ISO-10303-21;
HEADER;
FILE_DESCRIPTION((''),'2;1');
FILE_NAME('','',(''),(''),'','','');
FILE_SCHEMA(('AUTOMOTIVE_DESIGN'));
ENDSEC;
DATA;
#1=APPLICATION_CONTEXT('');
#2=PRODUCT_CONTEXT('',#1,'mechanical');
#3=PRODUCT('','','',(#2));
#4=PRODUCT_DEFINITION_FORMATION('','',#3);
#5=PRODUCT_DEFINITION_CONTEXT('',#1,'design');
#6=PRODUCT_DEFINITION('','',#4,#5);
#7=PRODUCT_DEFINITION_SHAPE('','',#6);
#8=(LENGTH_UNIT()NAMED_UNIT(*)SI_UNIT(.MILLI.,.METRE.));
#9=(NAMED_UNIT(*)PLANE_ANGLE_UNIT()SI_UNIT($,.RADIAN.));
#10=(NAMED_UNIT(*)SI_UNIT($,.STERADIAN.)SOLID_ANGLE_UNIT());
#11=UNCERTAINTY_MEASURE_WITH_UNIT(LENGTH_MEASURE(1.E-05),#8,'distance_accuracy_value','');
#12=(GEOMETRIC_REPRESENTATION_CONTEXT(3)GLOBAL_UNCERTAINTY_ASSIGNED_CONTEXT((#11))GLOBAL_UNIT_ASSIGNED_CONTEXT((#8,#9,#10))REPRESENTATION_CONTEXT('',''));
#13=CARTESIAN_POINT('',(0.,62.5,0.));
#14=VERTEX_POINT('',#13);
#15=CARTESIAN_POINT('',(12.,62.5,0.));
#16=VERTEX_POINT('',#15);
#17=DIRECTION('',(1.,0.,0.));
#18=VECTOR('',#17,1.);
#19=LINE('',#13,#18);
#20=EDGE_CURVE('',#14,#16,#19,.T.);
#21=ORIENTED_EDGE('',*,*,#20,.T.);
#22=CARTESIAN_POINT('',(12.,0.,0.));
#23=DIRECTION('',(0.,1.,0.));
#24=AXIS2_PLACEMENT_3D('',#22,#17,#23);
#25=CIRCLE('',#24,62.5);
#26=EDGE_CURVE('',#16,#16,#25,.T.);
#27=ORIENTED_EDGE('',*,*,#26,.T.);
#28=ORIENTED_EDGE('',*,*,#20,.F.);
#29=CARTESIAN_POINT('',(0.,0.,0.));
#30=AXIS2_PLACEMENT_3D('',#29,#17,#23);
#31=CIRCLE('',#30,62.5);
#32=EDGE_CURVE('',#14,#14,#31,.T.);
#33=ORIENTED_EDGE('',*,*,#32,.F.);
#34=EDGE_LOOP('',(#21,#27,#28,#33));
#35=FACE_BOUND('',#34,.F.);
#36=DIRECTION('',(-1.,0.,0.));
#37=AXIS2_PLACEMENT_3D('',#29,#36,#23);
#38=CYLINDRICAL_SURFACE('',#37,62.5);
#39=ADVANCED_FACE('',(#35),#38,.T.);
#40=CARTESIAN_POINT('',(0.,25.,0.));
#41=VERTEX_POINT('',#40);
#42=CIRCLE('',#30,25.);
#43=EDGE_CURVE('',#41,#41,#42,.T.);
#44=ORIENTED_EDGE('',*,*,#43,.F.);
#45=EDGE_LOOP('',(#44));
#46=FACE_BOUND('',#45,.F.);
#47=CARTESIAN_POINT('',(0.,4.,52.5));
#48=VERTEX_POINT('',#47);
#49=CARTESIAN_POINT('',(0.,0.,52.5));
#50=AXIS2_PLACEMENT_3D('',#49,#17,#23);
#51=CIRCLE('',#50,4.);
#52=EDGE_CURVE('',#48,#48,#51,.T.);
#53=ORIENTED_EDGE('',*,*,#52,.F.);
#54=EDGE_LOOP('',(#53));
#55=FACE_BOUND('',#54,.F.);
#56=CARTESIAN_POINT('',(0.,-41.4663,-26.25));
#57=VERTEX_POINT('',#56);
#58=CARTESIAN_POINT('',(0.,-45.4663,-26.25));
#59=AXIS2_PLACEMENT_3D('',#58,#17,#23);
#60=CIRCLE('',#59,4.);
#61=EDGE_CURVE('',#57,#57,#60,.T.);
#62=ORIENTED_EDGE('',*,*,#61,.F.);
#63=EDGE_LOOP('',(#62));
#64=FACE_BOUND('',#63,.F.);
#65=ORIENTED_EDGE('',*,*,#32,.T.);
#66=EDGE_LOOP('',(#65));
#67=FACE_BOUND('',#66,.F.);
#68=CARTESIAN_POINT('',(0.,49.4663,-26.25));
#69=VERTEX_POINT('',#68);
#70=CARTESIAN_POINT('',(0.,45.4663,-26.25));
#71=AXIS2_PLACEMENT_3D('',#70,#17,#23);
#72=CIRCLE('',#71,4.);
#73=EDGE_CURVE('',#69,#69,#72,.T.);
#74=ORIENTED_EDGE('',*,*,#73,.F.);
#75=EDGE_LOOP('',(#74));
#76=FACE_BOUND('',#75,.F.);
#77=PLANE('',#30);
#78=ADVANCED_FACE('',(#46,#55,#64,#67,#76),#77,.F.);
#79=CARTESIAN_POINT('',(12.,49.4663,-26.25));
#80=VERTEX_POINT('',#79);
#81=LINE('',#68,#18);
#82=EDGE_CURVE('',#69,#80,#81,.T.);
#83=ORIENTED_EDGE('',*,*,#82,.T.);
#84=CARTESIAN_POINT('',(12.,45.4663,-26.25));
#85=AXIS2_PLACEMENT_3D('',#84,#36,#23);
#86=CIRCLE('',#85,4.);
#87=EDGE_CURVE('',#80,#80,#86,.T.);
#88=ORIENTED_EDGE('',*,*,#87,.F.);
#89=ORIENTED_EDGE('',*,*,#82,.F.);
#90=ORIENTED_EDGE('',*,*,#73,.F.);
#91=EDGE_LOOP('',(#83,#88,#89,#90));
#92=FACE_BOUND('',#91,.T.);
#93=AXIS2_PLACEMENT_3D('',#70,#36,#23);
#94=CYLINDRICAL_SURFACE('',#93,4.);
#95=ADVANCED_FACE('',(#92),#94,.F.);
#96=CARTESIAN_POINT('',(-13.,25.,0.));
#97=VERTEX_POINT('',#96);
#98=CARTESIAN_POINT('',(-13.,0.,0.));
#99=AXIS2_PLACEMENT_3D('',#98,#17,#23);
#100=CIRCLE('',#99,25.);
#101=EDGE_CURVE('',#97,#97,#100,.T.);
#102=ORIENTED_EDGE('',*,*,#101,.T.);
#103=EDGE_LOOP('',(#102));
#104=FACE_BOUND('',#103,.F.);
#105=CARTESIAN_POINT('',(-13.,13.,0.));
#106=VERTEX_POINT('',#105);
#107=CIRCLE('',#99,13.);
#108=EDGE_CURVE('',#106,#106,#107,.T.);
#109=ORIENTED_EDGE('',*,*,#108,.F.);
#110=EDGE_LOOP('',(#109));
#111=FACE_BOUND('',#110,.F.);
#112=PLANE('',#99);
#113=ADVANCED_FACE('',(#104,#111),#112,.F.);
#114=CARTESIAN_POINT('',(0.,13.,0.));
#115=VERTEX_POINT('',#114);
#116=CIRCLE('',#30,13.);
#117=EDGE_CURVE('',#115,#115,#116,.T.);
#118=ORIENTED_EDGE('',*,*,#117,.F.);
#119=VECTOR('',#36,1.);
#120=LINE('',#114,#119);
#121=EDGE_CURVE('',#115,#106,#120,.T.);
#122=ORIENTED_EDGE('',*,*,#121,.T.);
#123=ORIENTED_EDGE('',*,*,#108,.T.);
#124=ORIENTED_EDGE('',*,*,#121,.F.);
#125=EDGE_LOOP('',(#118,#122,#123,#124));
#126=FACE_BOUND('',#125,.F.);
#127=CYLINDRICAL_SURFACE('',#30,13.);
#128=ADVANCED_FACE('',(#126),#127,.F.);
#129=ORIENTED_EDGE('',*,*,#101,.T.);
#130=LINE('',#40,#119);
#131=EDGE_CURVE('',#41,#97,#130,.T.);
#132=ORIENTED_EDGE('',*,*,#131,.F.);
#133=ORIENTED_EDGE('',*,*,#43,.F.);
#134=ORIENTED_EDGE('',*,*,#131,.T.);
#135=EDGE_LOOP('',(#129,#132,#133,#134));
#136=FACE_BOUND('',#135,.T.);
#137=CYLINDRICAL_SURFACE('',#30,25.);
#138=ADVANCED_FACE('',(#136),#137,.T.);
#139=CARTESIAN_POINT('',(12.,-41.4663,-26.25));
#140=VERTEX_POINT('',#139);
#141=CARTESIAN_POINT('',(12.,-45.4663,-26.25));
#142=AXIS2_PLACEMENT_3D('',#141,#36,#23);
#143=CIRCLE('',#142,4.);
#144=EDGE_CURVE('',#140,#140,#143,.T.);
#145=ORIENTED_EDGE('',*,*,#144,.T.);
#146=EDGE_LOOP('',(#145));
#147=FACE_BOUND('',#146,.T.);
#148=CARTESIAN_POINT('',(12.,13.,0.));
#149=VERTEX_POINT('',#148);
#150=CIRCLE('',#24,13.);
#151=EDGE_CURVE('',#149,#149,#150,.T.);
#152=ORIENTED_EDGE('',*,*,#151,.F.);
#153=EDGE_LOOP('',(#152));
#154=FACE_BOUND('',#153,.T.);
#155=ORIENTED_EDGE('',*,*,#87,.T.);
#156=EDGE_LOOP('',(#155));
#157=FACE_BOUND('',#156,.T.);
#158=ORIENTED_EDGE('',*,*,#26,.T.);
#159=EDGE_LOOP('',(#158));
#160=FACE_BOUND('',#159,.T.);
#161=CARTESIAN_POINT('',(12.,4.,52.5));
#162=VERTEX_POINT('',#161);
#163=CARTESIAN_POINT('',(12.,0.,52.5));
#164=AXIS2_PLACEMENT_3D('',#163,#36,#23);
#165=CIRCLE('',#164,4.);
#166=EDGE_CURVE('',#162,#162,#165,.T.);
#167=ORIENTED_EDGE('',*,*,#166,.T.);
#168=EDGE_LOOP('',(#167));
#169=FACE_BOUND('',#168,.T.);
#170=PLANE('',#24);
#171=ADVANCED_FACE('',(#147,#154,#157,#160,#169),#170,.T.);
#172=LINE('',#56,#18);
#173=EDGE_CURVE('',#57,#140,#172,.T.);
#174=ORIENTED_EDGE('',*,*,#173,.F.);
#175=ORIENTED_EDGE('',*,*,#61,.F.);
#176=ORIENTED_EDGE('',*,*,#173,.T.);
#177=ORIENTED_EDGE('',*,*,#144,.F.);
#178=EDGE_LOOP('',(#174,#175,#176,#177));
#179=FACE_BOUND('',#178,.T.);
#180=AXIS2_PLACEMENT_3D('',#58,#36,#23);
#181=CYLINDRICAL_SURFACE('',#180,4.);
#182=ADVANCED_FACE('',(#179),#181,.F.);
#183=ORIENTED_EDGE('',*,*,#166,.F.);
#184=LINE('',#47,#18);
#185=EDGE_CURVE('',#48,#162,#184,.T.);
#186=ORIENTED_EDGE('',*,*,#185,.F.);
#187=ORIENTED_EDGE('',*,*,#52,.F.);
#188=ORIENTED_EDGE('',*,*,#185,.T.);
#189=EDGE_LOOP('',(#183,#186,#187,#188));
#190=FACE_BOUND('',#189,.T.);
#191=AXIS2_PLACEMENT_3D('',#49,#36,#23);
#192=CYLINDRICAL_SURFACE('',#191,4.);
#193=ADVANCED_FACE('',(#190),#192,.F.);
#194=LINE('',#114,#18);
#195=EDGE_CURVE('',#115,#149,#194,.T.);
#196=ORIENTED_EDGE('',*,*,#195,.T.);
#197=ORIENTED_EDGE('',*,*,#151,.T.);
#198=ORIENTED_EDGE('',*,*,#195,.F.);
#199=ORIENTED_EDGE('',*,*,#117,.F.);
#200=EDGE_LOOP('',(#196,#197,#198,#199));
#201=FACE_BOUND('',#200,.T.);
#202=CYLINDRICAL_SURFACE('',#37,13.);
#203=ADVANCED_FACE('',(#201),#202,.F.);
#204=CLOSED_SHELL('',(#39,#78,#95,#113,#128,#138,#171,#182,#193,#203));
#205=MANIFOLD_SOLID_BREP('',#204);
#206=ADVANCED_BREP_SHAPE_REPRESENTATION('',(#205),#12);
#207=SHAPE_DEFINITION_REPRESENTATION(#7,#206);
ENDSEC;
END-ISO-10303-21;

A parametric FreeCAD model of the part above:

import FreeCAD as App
import Part
import Sketcher
from FreeCAD import Vector
Q = App.Units.Quantity

doc = App.newDocument("Part")
body = doc.addObject("PartDesign::Body", "Body")

sketch1 = doc.addObject("Sketcher::SketchObject", "Sketch")
body.addObject(sketch1)
sketch1.AttachmentSupport = (doc.YZ_Plane, [""])
sketch1.MapMode = "FlatFace"
sketch1.addGeometry([
    Part.Circle(Vector(0, 0, 0), Vector(0, 0, 1), 62),
    Part.Circle(Vector(0, 0, 0), Vector(0, 0, 1), 13),
], False)
sketch1.addConstraint([
    Sketcher.Constraint("Coincident", 0, 3, -1, 1),
    Sketcher.Constraint("Coincident", 1, 3, -1, 1),
    Sketcher.Constraint("Diameter", 0, Q("125 mm")),
    Sketcher.Constraint("Diameter", 1, Q("26 mm")),
])
pad1 = doc.addObject("PartDesign::Pad", "Pad")
body.addObject(pad1)
pad1.Profile = sketch1
pad1.Length = 12

sketch2 = doc.addObject("Sketcher::SketchObject", "Sketch001")
body.addObject(sketch2)
sketch2.AttachmentSupport = (doc.YZ_Plane, [""])
sketch2.MapMode = "FlatFace"
sketch2.addGeometry([
    Part.Circle(Vector(0, 0, 0), Vector(0, 0, 1), 25),
    Part.Circle(Vector(0, 0, 0), Vector(0, 0, 1), 13),
], False)
sketch2.addConstraint([
    Sketcher.Constraint("Coincident", 0, 3, -1, 1),
    Sketcher.Constraint("Coincident", 1, 3, -1, 1),
    Sketcher.Constraint("Diameter", 0, Q("50 mm")),
    Sketcher.Constraint("Diameter", 1, Q("26 mm")),
])
pad2 = doc.addObject("PartDesign::Pad", "Pad001")
body.addObject(pad2)
pad2.Profile = sketch2
pad2.Length = 13
pad2.Reversed = True

sketch3 = doc.addObject("Sketcher::SketchObject", "Sketch002")
body.addObject(sketch3)
sketch3.AttachmentSupport = (doc.YZ_Plane, [""])
sketch3.MapMode = "FlatFace"
sketch3.addGeometry([
    Part.Circle(Vector(0, 52.5, 0), Vector(0, 0, 1), 4),
    Part.Circle(Vector(-45.5, -26.2, 0), Vector(0, 0, 1), 4),
    Part.Circle(Vector(45.5, -26.2, 0), Vector(0, 0, 1), 4),
], False)
sketch3.addConstraint([
    Sketcher.Constraint("Equal", 0, 1),
    Sketcher.Constraint("Equal", 1, 2),
    Sketcher.Constraint("Symmetric", 1, 3, 2, 3, -2),
    Sketcher.Constraint("PointOnObject", 0, 3, -2),
    Sketcher.Constraint("Diameter", 0, Q("8 mm")),
    Sketcher.Constraint("DistanceY", -1, 1, 0, 3, Q("52.5 mm")),
    Sketcher.Constraint("DistanceY", 1, 3, -1, 1, Q("26.25 mm")),
    Sketcher.Constraint("DistanceX", 1, 3, -1, 1, Q("45.4663 mm")),
])
pocket1 = doc.addObject("PartDesign::Pocket", "Pocket")
body.addObject(pocket1)
pocket1.Profile = sketch3
pocket1.Length = 45.5
pocket1.Reversed = True

doc.recompute()
